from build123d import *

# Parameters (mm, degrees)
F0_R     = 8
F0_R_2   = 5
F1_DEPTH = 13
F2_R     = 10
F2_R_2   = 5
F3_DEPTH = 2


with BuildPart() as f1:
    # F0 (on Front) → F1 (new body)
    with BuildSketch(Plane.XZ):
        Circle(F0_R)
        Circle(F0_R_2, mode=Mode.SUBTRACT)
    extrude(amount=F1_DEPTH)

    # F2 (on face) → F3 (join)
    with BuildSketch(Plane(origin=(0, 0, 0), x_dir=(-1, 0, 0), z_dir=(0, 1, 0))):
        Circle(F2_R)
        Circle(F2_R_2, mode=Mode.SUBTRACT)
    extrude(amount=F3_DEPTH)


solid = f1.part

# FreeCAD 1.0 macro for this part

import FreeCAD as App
import Part
import Sketcher

V = App.Vector
Q = App.Units.Quantity

doc = App.newDocument("Part")
body = doc.addObject("PartDesign::Body", "Body")

# Sketch on XZ plane
sketch1 = body.newObject("Sketcher::SketchObject", "Sketch")
sketch1.AttachmentSupport = (doc.getObject("XZ_Plane"), [""])
sketch1.MapMode = "FlatFace"
sketch1.addGeometry([
    Part.Circle(V(0, 0, 0), V(0, 0, 1), 8),
    Part.Circle(V(0, 0, 0), V(0, 0, 1), 5),
], False)
sketch1.addConstraint([
    Sketcher.Constraint("Coincident", 0, 3, -1, 1),
    Sketcher.Constraint("Coincident", 1, 3, -1, 1),
    Sketcher.Constraint("Diameter", 0, Q("16 mm")),
    Sketcher.Constraint("Diameter", 1, Q("10 mm")),
])
pad1 = body.newObject("PartDesign::Pad", "Pad")
pad1.Profile = sketch1
pad1.Length = 13

# Sketch on XZ plane
sketch2 = body.newObject("Sketcher::SketchObject", "Sketch001")
sketch2.AttachmentSupport = (doc.getObject("XZ_Plane"), [""])
sketch2.MapMode = "FlatFace"
sketch2.addGeometry([
    Part.Circle(V(0, 0, 0), V(0, 0, 1), 10),
    Part.Circle(V(0, 0, 0), V(0, 0, 1), 5),
], False)
sketch2.addConstraint([
    Sketcher.Constraint("Coincident", 0, 3, -1, 1),
    Sketcher.Constraint("Coincident", 1, 3, -1, 1),
    Sketcher.Constraint("Diameter", 0, Q("20 mm")),
    Sketcher.Constraint("Diameter", 1, Q("10 mm")),
])
pad2 = body.newObject("PartDesign::Pad", "Pad001")
pad2.Profile = sketch2
pad2.Length = 2
pad2.Reversed = True

doc.recompute()
